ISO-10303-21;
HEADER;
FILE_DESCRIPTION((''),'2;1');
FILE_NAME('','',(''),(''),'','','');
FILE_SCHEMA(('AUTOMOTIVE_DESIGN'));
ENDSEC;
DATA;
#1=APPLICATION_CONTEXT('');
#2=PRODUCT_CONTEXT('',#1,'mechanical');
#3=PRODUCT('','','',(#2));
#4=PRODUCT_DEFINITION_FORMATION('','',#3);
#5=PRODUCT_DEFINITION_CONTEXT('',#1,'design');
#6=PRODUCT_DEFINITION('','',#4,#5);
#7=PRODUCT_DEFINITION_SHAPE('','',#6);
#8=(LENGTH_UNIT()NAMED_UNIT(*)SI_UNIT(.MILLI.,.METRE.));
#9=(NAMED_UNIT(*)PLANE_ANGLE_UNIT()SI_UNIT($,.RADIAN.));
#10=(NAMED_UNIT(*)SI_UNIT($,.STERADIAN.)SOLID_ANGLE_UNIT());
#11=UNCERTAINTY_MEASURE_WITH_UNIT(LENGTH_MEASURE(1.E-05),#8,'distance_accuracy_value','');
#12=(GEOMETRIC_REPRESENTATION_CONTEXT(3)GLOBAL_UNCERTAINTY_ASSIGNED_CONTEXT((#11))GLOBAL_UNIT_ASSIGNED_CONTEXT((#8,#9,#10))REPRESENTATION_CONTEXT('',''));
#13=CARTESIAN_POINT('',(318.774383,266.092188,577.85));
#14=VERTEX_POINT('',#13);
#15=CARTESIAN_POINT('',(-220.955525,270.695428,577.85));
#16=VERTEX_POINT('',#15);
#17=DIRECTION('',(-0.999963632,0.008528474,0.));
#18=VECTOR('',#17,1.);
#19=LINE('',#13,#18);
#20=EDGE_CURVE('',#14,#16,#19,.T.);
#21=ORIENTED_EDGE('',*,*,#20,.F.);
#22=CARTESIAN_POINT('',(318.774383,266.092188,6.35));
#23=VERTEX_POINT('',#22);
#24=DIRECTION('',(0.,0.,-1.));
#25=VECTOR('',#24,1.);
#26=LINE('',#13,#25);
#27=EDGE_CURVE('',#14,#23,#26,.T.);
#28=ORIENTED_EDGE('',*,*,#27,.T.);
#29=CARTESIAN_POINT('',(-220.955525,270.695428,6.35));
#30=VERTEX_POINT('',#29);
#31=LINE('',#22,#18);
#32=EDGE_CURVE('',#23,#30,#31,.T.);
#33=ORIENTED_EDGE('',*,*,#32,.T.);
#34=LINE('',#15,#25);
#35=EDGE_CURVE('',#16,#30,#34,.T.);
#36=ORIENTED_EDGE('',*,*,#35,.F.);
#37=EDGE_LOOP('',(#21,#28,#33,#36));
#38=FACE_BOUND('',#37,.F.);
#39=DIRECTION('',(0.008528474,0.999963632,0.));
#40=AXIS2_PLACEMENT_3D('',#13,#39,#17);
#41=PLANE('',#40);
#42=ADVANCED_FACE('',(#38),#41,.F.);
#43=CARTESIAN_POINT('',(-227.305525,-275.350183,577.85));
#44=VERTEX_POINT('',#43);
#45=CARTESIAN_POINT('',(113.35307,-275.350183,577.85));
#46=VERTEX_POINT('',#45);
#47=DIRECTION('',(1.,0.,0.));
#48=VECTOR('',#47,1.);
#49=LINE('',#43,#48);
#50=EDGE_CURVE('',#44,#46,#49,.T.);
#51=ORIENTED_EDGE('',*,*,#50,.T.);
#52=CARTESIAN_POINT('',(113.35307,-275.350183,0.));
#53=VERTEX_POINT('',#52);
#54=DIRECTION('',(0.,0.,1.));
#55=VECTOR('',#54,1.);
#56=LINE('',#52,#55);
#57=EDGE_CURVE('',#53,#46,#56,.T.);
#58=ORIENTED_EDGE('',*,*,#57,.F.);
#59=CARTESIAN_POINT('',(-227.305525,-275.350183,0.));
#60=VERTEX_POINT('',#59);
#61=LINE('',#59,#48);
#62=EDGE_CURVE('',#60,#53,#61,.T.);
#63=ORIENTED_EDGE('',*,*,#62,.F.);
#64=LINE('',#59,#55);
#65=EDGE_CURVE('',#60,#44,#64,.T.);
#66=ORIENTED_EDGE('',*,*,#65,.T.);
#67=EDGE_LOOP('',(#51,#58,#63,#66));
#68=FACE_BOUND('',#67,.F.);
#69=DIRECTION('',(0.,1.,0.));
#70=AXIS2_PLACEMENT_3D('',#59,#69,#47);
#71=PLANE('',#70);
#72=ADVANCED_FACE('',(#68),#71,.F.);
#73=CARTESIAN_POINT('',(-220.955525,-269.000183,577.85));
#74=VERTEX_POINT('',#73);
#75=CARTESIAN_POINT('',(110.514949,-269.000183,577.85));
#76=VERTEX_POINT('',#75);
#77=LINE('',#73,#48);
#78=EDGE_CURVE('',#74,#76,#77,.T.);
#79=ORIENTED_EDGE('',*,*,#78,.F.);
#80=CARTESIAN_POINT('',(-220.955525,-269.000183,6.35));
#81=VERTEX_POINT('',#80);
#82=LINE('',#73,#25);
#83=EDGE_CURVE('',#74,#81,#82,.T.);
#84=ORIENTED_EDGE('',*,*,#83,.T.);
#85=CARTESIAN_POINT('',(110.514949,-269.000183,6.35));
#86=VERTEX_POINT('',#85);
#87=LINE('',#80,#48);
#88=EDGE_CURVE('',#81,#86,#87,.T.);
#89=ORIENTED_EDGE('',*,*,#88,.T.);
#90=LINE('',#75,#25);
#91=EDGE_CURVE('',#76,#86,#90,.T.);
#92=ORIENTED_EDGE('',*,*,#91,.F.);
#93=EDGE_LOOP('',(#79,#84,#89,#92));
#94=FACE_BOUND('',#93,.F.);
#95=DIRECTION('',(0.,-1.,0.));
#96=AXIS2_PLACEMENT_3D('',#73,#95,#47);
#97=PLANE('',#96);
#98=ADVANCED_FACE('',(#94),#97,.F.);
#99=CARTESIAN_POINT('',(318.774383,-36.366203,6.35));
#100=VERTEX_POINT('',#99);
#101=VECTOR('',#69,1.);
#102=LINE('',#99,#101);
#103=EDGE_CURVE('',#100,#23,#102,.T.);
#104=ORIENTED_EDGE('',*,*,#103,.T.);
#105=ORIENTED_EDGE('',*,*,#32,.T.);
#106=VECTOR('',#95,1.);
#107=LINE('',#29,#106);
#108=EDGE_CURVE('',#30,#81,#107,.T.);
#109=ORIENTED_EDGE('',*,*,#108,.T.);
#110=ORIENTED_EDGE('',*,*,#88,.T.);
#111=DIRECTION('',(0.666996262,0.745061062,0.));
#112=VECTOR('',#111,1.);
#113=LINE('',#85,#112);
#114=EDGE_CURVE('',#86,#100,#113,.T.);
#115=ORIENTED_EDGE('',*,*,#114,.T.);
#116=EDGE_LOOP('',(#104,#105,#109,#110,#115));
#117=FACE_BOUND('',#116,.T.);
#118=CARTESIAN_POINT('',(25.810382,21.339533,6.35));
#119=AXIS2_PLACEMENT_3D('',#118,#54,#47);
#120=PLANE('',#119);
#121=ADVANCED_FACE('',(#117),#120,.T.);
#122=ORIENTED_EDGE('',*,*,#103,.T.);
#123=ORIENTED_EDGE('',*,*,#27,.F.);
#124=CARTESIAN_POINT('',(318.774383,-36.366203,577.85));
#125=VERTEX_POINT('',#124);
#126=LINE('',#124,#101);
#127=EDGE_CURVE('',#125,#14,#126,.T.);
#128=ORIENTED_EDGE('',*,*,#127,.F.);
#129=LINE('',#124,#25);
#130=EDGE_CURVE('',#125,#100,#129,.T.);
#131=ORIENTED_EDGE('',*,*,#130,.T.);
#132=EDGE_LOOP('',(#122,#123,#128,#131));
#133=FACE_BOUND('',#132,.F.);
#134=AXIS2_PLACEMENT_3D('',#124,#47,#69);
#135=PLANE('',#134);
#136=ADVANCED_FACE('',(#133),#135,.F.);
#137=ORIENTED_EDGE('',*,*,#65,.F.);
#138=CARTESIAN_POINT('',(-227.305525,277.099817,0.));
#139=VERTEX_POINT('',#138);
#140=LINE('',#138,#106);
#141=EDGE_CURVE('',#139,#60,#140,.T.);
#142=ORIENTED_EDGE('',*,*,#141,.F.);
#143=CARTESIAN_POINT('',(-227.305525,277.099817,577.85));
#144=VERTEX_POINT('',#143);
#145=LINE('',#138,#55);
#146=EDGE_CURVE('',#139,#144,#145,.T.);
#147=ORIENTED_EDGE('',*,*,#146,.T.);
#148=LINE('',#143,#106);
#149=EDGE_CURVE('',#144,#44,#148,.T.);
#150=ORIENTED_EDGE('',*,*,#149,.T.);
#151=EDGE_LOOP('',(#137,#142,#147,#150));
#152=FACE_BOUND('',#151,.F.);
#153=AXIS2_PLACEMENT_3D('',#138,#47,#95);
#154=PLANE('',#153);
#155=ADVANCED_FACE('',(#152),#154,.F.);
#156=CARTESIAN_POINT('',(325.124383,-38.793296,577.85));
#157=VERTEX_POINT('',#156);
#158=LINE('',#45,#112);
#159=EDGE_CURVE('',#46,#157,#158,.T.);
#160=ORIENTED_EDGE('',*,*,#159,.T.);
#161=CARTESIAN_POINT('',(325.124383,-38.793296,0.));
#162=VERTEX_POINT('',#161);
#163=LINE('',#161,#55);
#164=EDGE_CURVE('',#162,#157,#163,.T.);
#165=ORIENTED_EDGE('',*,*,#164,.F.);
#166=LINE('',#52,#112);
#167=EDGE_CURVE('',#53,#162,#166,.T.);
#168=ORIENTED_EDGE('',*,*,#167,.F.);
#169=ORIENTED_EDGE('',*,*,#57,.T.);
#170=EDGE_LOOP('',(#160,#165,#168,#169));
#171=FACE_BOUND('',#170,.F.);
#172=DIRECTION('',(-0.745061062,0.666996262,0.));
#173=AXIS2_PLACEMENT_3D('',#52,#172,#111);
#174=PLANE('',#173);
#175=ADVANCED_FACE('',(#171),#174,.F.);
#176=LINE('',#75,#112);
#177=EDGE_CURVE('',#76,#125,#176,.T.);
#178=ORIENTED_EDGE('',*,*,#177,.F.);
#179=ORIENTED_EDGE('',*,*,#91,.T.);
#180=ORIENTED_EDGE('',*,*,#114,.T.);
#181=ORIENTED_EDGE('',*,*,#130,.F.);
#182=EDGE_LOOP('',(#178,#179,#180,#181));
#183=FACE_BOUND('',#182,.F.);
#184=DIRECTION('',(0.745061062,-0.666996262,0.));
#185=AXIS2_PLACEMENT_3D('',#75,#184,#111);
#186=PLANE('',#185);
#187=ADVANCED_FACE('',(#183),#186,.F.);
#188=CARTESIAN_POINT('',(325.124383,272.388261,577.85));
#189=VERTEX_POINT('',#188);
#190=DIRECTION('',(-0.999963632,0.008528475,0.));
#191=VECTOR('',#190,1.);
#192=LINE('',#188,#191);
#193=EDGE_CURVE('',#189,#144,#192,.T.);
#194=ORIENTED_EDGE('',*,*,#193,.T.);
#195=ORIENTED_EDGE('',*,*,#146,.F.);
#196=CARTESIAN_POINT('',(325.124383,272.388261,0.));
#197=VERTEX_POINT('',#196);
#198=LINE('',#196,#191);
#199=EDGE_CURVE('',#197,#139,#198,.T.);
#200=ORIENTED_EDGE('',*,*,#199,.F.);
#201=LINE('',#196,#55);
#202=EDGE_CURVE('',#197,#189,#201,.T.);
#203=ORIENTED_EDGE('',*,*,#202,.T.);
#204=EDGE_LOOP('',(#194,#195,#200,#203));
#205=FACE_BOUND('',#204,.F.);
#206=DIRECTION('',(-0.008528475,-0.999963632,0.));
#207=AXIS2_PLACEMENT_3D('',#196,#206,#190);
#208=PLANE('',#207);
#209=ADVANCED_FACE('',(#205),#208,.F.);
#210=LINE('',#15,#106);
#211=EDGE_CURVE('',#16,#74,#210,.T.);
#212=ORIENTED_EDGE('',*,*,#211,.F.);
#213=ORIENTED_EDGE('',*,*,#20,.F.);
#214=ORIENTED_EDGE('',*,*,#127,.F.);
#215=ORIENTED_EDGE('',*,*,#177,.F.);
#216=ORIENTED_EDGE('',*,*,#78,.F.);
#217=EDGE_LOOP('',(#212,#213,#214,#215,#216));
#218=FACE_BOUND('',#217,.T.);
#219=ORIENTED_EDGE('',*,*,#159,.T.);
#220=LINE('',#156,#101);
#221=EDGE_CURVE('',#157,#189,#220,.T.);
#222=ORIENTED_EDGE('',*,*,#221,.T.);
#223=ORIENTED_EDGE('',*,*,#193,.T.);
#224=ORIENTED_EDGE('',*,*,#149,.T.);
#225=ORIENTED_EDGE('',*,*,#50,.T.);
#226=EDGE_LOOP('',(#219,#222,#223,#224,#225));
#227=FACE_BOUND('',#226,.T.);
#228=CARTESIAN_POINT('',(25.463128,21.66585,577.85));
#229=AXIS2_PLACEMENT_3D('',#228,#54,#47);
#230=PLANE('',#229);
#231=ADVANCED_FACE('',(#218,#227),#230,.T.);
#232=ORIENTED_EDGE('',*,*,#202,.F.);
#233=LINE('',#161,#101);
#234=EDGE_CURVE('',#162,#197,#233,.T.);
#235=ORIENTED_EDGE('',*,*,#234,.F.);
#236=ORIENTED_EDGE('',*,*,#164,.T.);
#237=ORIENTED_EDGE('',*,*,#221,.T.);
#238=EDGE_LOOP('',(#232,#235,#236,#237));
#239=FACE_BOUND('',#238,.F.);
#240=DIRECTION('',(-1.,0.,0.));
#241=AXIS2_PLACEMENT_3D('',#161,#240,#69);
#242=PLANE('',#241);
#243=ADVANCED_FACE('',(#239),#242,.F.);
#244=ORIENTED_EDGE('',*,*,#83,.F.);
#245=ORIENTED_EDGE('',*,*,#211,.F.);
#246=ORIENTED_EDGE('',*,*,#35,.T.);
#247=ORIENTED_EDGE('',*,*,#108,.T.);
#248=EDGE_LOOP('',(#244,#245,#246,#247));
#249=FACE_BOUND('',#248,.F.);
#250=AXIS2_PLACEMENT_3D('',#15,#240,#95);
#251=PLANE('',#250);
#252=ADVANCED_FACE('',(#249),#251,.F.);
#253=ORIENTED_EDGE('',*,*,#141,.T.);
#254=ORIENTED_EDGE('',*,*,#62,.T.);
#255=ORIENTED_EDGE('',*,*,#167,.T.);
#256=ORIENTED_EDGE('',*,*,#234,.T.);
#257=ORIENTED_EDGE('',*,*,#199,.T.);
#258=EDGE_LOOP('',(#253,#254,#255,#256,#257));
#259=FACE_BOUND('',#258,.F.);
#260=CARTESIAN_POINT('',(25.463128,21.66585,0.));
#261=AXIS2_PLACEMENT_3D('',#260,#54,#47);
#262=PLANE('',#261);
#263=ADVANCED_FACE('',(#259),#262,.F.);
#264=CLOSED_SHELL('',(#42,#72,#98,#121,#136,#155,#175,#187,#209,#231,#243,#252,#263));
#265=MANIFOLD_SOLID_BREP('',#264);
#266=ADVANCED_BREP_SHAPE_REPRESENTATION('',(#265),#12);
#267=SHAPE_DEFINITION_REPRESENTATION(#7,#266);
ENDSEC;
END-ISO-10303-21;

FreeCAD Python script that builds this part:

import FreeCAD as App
import Part
import Sketcher
from FreeCAD import Vector
Q = App.Units.Quantity

doc = App.newDocument("Part")
body = doc.addObject("PartDesign::Body", "Body")

# Sketch on XY plane
sketch1 = body.newObject("Sketcher::SketchObject", "Sketch")
sketch1.AttachmentSupport = (doc.getObject("XY_Plane"), [""])
sketch1.MapMode = "FlatFace"
sketch1.addGeometry([
    Part.LineSegment(Vector(325.124383, 272.388261, 0), Vector(-227.305525, 277.099817, 0)),  # 0
    Part.LineSegment(Vector(-227.305525, 277.099817, 0), Vector(-227.305525, -275.350183, 0)),  # 1
    Part.LineSegment(Vector(-227.305525, -275.350183, 0), Vector(113.35307, -275.350183, 0)),  # 2
    Part.LineSegment(Vector(113.35307, -275.350183, 0), Vector(325.124383, -38.793296, 0)),  # 3
    Part.LineSegment(Vector(325.124383, -38.793296, 0), Vector(325.124383, 272.388261, 0)),  # 4
], False)
sketch1.addConstraint([
    Sketcher.Constraint("Coincident", 0, 2, 1, 1),
    Sketcher.Constraint("Coincident", 1, 2, 2, 1),
    Sketcher.Constraint("Coincident", 2, 2, 3, 1),
    Sketcher.Constraint("Coincident", 3, 2, 4, 1),
    Sketcher.Constraint("Coincident", 4, 2, 0, 1),
    Sketcher.Constraint("Vertical", 1),
    Sketcher.Constraint("Horizontal", 2),
    Sketcher.Constraint("Vertical", 4),
    Sketcher.Constraint("Distance", 3, Q("12.5 in")),
    Sketcher.Constraint("DistanceY", 1, 2, 1, 1, Q("21.75 in")),
    Sketcher.Constraint("Distance", 0, Q("21.75 in")),
    Sketcher.Constraint("DistanceX", 2, 1, 2, 2, 340.658595),
    Sketcher.Constraint("DistanceY", 4, 1, 4, 2, 311.181557),
    Sketcher.Constraint("DistanceX", -1, 1, 2, 2, 113.35307),
    Sketcher.Constraint("DistanceY", -1, 1, 4, 2, 272.388261),
])
pad1 = body.newObject("PartDesign::Pad", "Pad")
pad1.Profile = sketch1
pad1.Length = Q("22.75 in")

# Sketch on XY plane
sketch2 = body.newObject("Sketcher::SketchObject", "Sketch001")
sketch2.AttachmentSupport = (doc.getObject("XY_Plane"), [""])
sketch2.MapMode = "FlatFace"
sketch2.AttachmentOffset = App.Placement(Vector(0, 0, 22.75 * 25.4), App.Rotation())
sketch2.addGeometry([
    Part.LineSegment(Vector(-220.955525, -269.000183, 0), Vector(110.514949, -269.000183, 0)),  # 0
    Part.LineSegment(Vector(110.514949, -269.000183, 0), Vector(318.774383, -36.366203, 0)),  # 1
    Part.LineSegment(Vector(318.774383, -36.366203, 0), Vector(318.774383, 266.092188, 0)),  # 2
    Part.LineSegment(Vector(318.774383, 266.092188, 0), Vector(-220.955525, 270.695428, 0)),  # 3
    Part.LineSegment(Vector(-220.955525, 270.695428, 0), Vector(-220.955525, -269.000183, 0)),  # 4
], False)
sketch2.addConstraint([
    Sketcher.Constraint("Coincident", 0, 2, 1, 1),
    Sketcher.Constraint("Coincident", 1, 2, 2, 1),
    Sketcher.Constraint("Coincident", 2, 2, 3, 1),
    Sketcher.Constraint("Coincident", 3, 2, 4, 1),
    Sketcher.Constraint("Coincident", 4, 2, 0, 1),
    Sketcher.Constraint("Horizontal", 0),
    Sketcher.Constraint("Vertical", 2),
    Sketcher.Constraint("Vertical", 4),
    Sketcher.Constraint("DistanceY", 2, 1, 2, 2, 302.458391),
    Sketcher.Constraint("DistanceY", 4, 2, 4, 1, 539.695611),
    Sketcher.Constraint("DistanceX", 0, 1, 0, 2, 331.470474),
    Sketcher.Constraint("DistanceX", -1, 1, 0, 2, 110.514949),
    Sketcher.Constraint("DistanceY", -1, 1, 2, 2, 266.092188),
    Sketcher.Constraint("DistanceY", -1, 1, 3, 2, 270.695428),
    Sketcher.Constraint("DistanceX", 3, 2, 2, 2, 539.729908),
])
pocket1 = body.newObject("PartDesign::Pocket", "Pocket")
pocket1.Profile = sketch2
pocket1.Length = Q("22.5 in")

doc.recompute()
